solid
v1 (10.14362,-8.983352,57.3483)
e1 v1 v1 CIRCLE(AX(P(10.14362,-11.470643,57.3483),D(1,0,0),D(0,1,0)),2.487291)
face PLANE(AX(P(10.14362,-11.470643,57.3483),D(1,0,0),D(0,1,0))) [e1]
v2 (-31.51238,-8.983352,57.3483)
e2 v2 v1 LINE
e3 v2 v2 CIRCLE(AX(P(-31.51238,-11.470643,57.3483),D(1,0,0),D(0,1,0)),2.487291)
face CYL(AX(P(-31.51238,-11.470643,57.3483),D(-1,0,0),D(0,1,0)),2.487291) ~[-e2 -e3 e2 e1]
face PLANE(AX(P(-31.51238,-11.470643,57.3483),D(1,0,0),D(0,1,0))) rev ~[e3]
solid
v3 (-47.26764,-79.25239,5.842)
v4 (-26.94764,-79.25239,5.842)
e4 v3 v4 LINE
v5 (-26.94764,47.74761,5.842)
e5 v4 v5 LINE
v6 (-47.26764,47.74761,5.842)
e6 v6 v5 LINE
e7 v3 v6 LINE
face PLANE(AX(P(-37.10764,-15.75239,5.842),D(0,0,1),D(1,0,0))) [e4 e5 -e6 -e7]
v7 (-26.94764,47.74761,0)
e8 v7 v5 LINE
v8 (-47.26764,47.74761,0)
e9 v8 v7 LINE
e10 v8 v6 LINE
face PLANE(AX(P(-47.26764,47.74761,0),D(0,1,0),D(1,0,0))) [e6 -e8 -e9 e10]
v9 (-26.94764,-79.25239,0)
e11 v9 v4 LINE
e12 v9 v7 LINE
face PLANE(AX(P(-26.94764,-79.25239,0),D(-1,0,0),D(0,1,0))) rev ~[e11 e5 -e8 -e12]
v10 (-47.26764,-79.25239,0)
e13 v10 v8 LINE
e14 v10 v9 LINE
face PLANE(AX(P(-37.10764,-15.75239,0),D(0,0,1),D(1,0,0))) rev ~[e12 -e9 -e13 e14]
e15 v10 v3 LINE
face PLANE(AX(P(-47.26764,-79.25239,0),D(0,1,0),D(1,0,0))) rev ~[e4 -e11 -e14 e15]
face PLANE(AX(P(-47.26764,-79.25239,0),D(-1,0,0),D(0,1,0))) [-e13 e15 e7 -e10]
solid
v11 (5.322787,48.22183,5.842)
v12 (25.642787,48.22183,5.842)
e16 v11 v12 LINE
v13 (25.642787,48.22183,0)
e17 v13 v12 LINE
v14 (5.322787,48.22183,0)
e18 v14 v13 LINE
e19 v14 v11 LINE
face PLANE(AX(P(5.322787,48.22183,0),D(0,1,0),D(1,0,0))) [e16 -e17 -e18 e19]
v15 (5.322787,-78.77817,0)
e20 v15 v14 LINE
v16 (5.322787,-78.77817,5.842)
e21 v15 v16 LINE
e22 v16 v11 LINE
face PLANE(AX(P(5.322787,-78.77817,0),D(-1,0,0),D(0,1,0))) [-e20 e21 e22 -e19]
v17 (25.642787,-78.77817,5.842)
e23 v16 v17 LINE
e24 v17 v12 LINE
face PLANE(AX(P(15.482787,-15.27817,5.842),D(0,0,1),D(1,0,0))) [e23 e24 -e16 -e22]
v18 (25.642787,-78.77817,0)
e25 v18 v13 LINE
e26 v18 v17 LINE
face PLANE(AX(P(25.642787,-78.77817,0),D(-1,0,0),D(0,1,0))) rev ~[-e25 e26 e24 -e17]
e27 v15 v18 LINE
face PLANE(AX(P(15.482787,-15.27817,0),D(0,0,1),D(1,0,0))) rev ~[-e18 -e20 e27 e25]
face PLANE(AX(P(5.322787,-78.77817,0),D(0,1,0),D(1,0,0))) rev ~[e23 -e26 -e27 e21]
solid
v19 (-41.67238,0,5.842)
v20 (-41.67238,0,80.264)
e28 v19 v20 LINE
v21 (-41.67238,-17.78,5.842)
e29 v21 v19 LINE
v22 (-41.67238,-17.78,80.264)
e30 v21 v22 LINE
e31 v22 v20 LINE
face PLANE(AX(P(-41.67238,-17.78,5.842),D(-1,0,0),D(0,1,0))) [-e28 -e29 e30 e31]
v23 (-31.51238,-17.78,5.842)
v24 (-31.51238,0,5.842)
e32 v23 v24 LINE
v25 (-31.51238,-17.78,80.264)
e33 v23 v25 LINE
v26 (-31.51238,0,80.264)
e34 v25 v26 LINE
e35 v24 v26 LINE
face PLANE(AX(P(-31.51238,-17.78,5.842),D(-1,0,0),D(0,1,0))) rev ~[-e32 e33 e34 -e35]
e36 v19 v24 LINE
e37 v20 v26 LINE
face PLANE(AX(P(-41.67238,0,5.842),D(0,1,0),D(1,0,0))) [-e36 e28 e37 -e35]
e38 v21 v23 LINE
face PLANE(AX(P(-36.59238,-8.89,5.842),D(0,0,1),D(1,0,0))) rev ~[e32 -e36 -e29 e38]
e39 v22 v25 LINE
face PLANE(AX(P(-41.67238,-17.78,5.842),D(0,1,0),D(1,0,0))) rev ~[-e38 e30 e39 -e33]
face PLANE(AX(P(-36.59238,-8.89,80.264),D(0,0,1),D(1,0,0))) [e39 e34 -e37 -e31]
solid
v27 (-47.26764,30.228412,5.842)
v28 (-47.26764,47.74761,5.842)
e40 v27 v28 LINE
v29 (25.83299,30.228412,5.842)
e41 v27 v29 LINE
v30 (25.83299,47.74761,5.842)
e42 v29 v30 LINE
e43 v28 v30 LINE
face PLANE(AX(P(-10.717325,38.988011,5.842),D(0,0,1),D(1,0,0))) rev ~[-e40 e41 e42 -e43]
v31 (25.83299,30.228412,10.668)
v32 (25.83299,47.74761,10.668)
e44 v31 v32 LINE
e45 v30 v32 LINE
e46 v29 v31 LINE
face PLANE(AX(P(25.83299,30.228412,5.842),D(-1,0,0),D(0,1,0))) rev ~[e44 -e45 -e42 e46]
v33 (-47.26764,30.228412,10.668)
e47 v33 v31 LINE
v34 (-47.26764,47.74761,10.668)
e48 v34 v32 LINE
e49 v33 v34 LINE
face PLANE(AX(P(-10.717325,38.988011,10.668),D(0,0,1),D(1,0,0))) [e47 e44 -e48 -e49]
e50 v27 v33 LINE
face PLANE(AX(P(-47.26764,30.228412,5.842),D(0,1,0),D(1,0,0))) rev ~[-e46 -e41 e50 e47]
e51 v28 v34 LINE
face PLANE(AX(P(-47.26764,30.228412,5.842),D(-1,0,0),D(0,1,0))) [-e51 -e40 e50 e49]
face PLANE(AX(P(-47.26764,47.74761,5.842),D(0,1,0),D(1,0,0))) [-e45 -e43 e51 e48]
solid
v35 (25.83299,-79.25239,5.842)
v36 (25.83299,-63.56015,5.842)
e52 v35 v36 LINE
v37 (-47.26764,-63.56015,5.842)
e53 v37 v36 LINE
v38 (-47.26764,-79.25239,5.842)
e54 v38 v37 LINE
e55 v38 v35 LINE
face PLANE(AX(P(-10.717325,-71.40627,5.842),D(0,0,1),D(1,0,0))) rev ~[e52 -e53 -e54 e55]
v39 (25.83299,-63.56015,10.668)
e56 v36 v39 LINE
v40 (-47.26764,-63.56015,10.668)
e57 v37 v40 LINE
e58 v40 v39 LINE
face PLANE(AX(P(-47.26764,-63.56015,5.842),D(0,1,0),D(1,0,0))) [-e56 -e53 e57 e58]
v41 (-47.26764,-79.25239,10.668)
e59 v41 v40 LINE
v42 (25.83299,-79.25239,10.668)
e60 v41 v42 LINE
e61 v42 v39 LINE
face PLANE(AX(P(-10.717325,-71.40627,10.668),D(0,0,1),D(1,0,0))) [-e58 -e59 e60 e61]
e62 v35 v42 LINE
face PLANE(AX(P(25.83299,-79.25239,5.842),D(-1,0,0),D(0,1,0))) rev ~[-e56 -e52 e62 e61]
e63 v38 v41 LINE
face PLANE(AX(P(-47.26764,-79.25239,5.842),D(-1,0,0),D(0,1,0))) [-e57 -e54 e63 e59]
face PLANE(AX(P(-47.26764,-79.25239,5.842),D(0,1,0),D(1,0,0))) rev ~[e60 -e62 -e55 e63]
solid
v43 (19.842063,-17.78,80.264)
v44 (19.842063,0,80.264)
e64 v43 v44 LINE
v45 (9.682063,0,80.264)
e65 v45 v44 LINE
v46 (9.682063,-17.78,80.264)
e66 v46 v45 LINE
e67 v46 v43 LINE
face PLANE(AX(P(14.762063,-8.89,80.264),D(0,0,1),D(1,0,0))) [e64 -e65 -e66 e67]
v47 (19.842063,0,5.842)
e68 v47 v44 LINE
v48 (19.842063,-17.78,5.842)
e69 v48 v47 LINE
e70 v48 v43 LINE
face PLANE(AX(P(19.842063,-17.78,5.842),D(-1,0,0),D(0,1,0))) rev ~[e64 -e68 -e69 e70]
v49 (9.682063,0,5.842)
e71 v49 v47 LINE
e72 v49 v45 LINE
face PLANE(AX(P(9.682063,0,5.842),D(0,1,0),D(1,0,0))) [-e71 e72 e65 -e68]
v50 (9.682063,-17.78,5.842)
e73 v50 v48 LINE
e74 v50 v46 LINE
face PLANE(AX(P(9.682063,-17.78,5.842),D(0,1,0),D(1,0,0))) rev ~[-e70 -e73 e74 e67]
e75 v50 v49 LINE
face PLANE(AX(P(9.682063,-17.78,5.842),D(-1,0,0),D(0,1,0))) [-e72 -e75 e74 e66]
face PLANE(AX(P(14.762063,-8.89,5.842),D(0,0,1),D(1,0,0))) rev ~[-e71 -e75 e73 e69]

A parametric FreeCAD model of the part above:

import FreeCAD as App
import Part
import Sketcher
Q = App.Units.Quantity


def add_polygon(sketch, points):
    """Adds a closed chain of lines whose ends are joined by coincident constraints."""
    first, n = sketch.GeometryCount, len(points)
    for a, b in zip(points, points[1:] + points[:1]):
        sketch.addGeometry(Part.LineSegment(App.Vector(*a, 0), App.Vector(*b, 0)), False)
    for i in range(n):
        sketch.addConstraint(Sketcher.Constraint("Coincident", first + i, 2, first + (i + 1) % n, 1))

doc = App.newDocument("Part")
body = doc.addObject("PartDesign::Body", "Body")
body.AllowCompound = True

sketch1 = doc.addObject("Sketcher::SketchObject", "Sketch")
body.addObject(sketch1)
sketch1.AttachmentSupport = (doc.XY_Plane, [""])
sketch1.MapMode = "FlatFace"
add_polygon(sketch1, [(-47, 48), (-47, -79), (-27, -79), (-27, 48)])
add_polygon(sketch1, [(5, 48), (5, -79), (26, -79), (26, 48)])
sketch1.addConstraint([
    Sketcher.Constraint("Vertical", 0),
    Sketcher.Constraint("Horizontal", 1),
    Sketcher.Constraint("Vertical", 2),
    Sketcher.Constraint("Horizontal", 3),
    Sketcher.Constraint("Vertical", 4),
    Sketcher.Constraint("Horizontal", 5),
    Sketcher.Constraint("Vertical", 6),
    Sketcher.Constraint("Horizontal", 7),
    Sketcher.Constraint("Equal", 3, 5),
    Sketcher.Constraint("Equal", 2, 4),
    Sketcher.Constraint("DistanceY", 0, 2, 0, 1, Q("5 in")),
    Sketcher.Constraint("DistanceX", 1, 1, 1, 2, Q("0.8 in")),
    Sketcher.Constraint("DistanceX", 0, 2, -1, 1, 47.26764),
    Sketcher.Constraint("DistanceY", 0, 2, -1, 1, 79.25239),
    Sketcher.Constraint("DistanceY", 4, 2, -1, 1, 78.77817),
    Sketcher.Constraint("DistanceX", -1, 1, 4, 2, 5.322787),
])
pad1 = doc.addObject("PartDesign::Pad", "Pad")
body.addObject(pad1)
pad1.Profile = sketch1
pad1.Length = Q("0.23 in")
body2 = doc.addObject("PartDesign::Body", "Body001")
body2.AllowCompound = True

sketch2 = doc.addObject("Sketcher::SketchObject", "Sketch001")
body2.addObject(sketch2)
sketch2.AttachmentSupport = (doc.getObject("XY_Plane001"), [""])
sketch2.MapMode = "FlatFace"
sketch2.AttachmentOffset = App.Placement(App.Vector(0, 0, 0.23 * 25.4), App.Rotation())
add_polygon(sketch2, [(-42, 0), (-42, -18), (-32, -18), (-32, 0)])
add_polygon(sketch2, [(10, 0), (10, -18), (20, -18), (20, 0)])
sketch2.addConstraint([
    Sketcher.Constraint("Vertical", 0),
    Sketcher.Constraint("Horizontal", 1),
    Sketcher.Constraint("Vertical", 2),
    Sketcher.Constraint("Horizontal", 3),
    Sketcher.Constraint("Vertical", 4),
    Sketcher.Constraint("Horizontal", 5),
    Sketcher.Constraint("Vertical", 6),
    Sketcher.Constraint("Horizontal", 7),
    Sketcher.Constraint("PointOnObject", 2, 2, -1),
    Sketcher.Constraint("PointOnObject", 6, 2, -1),
    Sketcher.Constraint("Horizontal", 1, 2, 4, 2),
    Sketcher.Constraint("Equal", 3, 5),
    Sketcher.Constraint("DistanceX", 1, 1, 1, 2, Q("0.4 in")),
    Sketcher.Constraint("DistanceY", 0, 2, 0, 1, Q("0.7 in")),
    Sketcher.Constraint("DistanceX", 0, 2, -1, 1, 41.67238),
    Sketcher.Constraint("DistanceX", -1, 1, 4, 2, 9.682063),
])
pad2 = doc.addObject("PartDesign::Pad", "Pad001")
body2.addObject(pad2)
pad2.Profile = sketch2
pad2.Length = Q("2.93 in")
body3 = doc.addObject("PartDesign::Body", "Body002")

sketch3 = doc.addObject("Sketcher::SketchObject", "Sketch002")
body3.addObject(sketch3)
sketch3.AttachmentSupport = (doc.getObject("YZ_Plane002"), [""])
sketch3.MapMode = "FlatFace"
sketch3.AttachmentOffset = App.Placement(App.Vector(0, 0, -31.51238), App.Rotation())
sketch3.addGeometry(Part.Circle(App.Vector(-11.5, 57.3, 0), App.Vector(0, 0, 1), 2.5), False)
sketch3.addConstraint([
    Sketcher.Constraint("Diameter", 0, 4.974582),
    Sketcher.Constraint("DistanceX", 0, 3, -1, 1, Q("0.4516001 in")),
    Sketcher.Constraint("DistanceY", -1, 1, 0, 3, 57.3483),
])
pad3 = doc.addObject("PartDesign::Pad", "Pad002")
body3.addObject(pad3)
pad3.Profile = sketch3
pad3.Length = Q("1.64 in")
body4 = doc.addObject("PartDesign::Body", "Body003")
body4.AllowCompound = True

sketch4 = doc.addObject("Sketcher::SketchObject", "Sketch003")
body4.addObject(sketch4)
sketch4.AttachmentSupport = (doc.getObject("XY_Plane003"), [""])
sketch4.MapMode = "FlatFace"
sketch4.AttachmentOffset = App.Placement(App.Vector(0, 0, 0.23 * 25.4), App.Rotation())
add_polygon(sketch4, [(-47, -64), (-47, -79), (26, -79), (26, -64)])
add_polygon(sketch4, [(-47, 48), (-47, 30), (26, 30), (26, 48)])
sketch4.addConstraint([
    Sketcher.Constraint("Vertical", 0),
    Sketcher.Constraint("Horizontal", 1),
    Sketcher.Constraint("Vertical", 2),
    Sketcher.Constraint("Horizontal", 3),
    Sketcher.Constraint("Vertical", 4),
    Sketcher.Constraint("Horizontal", 5),
    Sketcher.Constraint("Vertical", 6),
    Sketcher.Constraint("Horizontal", 7),
    Sketcher.Constraint("Vertical", 3, 2, 4, 2),
    Sketcher.Constraint("Vertical", 2, 2, 5, 2),
    Sketcher.Constraint("DistanceY", 1, 2, 6, 2, Q("5 in")),
    Sketcher.Constraint("DistanceY", 4, 2, 4, 1, 17.519198),
    Sketcher.Constraint("DistanceX", 1, 1, 1, 2, 73.10063),
    Sketcher.Constraint("DistanceY", 0, 2, 0, 1, 15.692239),
    Sketcher.Constraint("DistanceX", 0, 2, -1, 1, 47.26764),
    Sketcher.Constraint("DistanceY", 0, 2, -1, 1, 79.25239),
])
pad4 = doc.addObject("PartDesign::Pad", "Pad003")
body4.addObject(pad4)
pad4.Profile = sketch4
pad4.Length = Q("0.19 in")

doc.recompute()
